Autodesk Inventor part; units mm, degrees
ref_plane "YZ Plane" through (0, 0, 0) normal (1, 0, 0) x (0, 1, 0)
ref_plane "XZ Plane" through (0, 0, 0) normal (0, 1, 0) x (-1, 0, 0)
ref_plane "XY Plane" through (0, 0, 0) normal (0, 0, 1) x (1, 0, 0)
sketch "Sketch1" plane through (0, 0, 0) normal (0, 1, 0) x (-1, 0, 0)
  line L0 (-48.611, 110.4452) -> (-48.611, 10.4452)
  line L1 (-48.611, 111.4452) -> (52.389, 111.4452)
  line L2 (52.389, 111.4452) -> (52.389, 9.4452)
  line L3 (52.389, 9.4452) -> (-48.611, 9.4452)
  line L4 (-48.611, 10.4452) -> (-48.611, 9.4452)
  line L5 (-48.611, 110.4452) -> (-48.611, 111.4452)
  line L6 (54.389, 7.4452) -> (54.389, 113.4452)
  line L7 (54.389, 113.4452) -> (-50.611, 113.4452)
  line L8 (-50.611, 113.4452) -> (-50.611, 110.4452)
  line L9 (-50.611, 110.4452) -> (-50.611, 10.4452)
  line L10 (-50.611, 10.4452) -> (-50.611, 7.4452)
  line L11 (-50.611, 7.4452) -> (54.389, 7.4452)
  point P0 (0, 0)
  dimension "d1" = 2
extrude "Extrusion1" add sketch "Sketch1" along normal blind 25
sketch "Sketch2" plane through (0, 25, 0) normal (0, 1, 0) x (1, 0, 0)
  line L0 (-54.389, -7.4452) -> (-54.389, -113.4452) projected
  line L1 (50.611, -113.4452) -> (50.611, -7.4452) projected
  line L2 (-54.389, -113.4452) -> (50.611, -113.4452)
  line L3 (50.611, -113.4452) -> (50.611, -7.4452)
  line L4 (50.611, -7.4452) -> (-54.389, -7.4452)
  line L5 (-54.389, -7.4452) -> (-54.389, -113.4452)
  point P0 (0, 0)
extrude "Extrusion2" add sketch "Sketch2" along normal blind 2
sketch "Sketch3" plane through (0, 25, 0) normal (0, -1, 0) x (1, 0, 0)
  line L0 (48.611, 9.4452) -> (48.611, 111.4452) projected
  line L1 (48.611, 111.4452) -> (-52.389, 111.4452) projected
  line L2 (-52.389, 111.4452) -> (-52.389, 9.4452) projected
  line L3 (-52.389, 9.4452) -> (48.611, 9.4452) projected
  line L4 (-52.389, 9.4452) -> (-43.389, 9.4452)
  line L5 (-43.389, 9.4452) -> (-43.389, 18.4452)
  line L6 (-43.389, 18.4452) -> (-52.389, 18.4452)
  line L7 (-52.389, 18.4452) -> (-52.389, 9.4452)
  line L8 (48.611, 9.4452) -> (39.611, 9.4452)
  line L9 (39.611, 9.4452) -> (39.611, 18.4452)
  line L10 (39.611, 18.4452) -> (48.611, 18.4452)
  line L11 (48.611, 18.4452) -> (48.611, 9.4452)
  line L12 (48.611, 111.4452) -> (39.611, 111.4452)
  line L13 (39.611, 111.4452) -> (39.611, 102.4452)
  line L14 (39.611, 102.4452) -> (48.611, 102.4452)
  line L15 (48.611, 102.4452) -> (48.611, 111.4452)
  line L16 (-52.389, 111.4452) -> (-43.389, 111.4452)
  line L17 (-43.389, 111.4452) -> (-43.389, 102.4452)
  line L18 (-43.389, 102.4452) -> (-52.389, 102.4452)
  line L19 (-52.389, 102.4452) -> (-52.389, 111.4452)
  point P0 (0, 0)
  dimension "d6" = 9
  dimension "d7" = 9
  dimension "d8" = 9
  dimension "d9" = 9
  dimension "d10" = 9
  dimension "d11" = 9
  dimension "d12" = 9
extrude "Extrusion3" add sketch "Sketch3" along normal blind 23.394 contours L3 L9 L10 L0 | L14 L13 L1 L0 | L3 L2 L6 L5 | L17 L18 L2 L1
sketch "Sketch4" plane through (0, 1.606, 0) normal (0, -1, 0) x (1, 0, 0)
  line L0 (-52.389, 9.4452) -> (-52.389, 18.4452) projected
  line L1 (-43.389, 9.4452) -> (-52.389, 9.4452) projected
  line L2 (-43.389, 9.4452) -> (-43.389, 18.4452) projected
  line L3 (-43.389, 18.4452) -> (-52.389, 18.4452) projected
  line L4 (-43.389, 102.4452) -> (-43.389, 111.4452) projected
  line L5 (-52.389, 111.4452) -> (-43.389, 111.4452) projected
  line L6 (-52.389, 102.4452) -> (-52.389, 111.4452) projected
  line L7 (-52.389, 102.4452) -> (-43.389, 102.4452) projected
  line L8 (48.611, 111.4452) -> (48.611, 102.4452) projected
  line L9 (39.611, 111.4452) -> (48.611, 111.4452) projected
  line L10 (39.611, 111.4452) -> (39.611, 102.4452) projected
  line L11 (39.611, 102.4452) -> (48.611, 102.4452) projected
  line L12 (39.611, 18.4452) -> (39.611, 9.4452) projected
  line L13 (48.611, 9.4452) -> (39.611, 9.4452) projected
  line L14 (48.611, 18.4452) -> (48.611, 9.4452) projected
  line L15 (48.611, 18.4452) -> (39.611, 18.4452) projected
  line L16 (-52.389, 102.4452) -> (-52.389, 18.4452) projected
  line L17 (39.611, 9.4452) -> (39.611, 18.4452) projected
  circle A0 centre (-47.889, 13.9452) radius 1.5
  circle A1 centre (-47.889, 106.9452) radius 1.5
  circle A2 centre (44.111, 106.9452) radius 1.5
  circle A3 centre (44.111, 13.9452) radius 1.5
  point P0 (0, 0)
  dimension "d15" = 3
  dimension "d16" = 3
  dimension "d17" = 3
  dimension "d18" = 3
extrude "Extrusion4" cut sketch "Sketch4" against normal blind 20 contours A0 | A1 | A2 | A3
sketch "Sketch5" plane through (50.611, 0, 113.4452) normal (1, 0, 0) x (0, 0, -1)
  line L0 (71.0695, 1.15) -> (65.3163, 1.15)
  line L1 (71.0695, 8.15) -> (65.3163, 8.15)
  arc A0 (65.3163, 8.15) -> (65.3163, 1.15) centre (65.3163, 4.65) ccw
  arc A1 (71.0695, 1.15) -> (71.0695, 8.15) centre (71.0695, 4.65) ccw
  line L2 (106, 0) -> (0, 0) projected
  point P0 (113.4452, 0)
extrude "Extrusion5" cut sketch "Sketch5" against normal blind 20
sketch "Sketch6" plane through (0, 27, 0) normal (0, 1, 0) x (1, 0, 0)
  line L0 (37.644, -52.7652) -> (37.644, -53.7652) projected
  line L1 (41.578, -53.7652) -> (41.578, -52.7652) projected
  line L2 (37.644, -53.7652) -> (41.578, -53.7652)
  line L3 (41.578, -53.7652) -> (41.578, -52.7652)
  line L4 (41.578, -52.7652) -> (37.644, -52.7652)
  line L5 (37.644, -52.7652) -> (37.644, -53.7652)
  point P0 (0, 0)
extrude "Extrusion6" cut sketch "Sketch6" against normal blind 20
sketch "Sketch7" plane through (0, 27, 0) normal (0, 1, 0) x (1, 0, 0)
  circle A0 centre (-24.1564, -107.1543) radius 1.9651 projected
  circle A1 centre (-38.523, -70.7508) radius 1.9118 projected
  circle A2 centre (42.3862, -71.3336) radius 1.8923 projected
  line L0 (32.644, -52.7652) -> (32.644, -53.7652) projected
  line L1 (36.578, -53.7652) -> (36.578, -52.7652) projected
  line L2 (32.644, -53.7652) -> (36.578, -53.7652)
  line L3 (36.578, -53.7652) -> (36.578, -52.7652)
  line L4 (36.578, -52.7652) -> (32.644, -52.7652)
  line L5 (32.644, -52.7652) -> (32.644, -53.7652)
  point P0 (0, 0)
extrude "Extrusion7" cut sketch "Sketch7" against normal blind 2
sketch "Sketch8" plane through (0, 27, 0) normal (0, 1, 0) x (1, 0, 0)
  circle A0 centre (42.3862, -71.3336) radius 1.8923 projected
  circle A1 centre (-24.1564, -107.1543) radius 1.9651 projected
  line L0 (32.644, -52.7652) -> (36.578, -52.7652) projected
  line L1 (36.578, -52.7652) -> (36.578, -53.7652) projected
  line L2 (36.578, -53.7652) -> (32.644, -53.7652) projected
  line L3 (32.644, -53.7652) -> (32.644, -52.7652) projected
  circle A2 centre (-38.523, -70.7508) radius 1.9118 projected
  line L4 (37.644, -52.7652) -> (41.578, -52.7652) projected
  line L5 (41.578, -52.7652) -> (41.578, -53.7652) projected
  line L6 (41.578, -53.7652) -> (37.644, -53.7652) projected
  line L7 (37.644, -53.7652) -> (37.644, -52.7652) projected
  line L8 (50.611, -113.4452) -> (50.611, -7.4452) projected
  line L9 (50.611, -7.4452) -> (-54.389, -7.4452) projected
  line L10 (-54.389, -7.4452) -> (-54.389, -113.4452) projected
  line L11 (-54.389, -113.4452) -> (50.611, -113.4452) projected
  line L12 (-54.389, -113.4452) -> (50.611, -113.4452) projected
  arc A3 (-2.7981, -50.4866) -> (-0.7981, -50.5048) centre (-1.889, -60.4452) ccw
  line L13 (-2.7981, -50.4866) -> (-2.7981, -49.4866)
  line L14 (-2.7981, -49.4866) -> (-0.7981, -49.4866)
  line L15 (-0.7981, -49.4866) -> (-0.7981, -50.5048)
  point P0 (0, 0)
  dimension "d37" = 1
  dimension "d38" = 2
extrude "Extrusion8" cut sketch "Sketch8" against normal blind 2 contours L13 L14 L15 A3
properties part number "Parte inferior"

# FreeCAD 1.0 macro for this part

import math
import FreeCAD as App
import Part
import Sketcher
from FreeCAD import Vector
Q = App.Units.Quantity


def add_polygon(sketch, points):
    """Adds a closed chain of lines whose ends are joined by coincident constraints."""
    first, n = sketch.GeometryCount, len(points)
    for a, b in zip(points, points[1:] + points[:1]):
        sketch.addGeometry(Part.LineSegment(App.Vector(*a, 0), App.Vector(*b, 0)), False)
    for i in range(n):
        sketch.addConstraint(Sketcher.Constraint("Coincident", first + i, 2, first + (i + 1) % n, 1))

doc = App.newDocument("Part")
params = doc.addObject("Spreadsheet::Sheet", "Params")
for row, (alias, value) in enumerate([
    ("sketch1_width", "105 mm"),
    ("sketch1_height", "106 mm"),
    ("pad1_length", "25 mm"),
    ("sketch2_width", "105 mm"),
    ("sketch2_height", "106 mm"),
    ("pad2_length", "2 mm"),
    ("sketch3_width", "9 mm"),
    ("pad3_length", "23.394 mm"),
    ("sketch4_diameter", "3 mm"),
    ("pocket1_length", "20 mm"),
    ("sketch5_radius", "3.5 mm"),
    ("pocket2_length", "20 mm"),
    ("sketch6_height", "1 mm"),
    ("pocket3_length", "20 mm"),
    ("sketch7_height", "1 mm"),
    ("pocket4_length", "2 mm"),
    ("sketch8_width", "2 mm"),
    ("sketch8_height", "1 mm"),
    ("sketch8_radius", "10 mm"),
    ("pocket5_length", "2 mm"),
], start=1):
    params.set(f"A{row}", alias)
    params.set(f"B{row}", "=" + value)
    params.setAlias(f"B{row}", alias)

body = doc.addObject("PartDesign::Body", "Body")

# Sketch on XZ plane
sketch1 = body.newObject("Sketcher::SketchObject", "Sketch")
sketch1.AttachmentSupport = (doc.getObject("XZ_Plane"), [""])
sketch1.MapMode = "FlatFace"
add_polygon(sketch1, [(50.611, 7.4452), (-54.389, 7.4452), (-54.389, 113.4452), (50.611, 113.4452)])  # lines 0-3
add_polygon(sketch1, [(48.611, 9.4452), (48.611, 111.4452), (-52.389, 111.4452), (-52.389, 9.4452)])  # lines 4-7
sketch1.addConstraint([
    Sketcher.Constraint("Horizontal", 0),
    Sketcher.Constraint("Vertical", 1),
    Sketcher.Constraint("Horizontal", 2),
    Sketcher.Constraint("Vertical", 3),
    Sketcher.Constraint("Vertical", 4),
    Sketcher.Constraint("Horizontal", 5),
    Sketcher.Constraint("Vertical", 6),
    Sketcher.Constraint("Horizontal", 7),
    Sketcher.Constraint("DistanceX", 4, 2, 2, 2, Q("2 mm")),
    Sketcher.Constraint("DistanceY", 4, 2, 2, 2, Q("2 mm")),
    Sketcher.Constraint("DistanceX", 1, 2, 5, 2, Q("2 mm")),
    Sketcher.Constraint("DistanceY", 0, 2, 6, 2, Q("2 mm")),
    Sketcher.Constraint("DistanceX", 0, 2, 0, 1, Q("105 mm")),
    Sketcher.Constraint("DistanceY", 1, 1, 1, 2, Q("106 mm")),
    Sketcher.Constraint("DistanceX", 0, 2, -1, 1, Q("54.389 mm")),
    Sketcher.Constraint("DistanceY", -1, 1, 0, 2, Q("7.4452 mm")),
])
sketch1.setExpression("Constraints[20]", "Params.sketch1_width")
sketch1.setExpression("Constraints[21]", "Params.sketch1_height")
pad1 = body.newObject("PartDesign::Pad", "Pad")
pad1.Profile = sketch1
pad1.setExpression("Length", "Params.pad1_length")
pad1.Reversed = True

# Sketch on XZ plane
sketch2 = body.newObject("Sketcher::SketchObject", "Sketch001")
sketch2.AttachmentSupport = (doc.getObject("XZ_Plane"), [""])
sketch2.MapMode = "FlatFace"
sketch2.AttachmentOffset = App.Placement(Vector(0, 0, -25), App.Rotation())
add_polygon(sketch2, [(50.611, 7.4452), (-54.389, 7.4452), (-54.389, 113.4452), (50.611, 113.4452)])  # lines 0-3
sketch2.addConstraint([
    Sketcher.Constraint("Horizontal", 0),
    Sketcher.Constraint("Vertical", 1),
    Sketcher.Constraint("Horizontal", 2),
    Sketcher.Constraint("Vertical", 3),
    Sketcher.Constraint("DistanceX", 0, 2, 0, 1, Q("105 mm")),
    Sketcher.Constraint("DistanceY", 1, 1, 1, 2, Q("106 mm")),
    Sketcher.Constraint("DistanceX", 0, 2, -1, 1, Q("54.389 mm")),
    Sketcher.Constraint("DistanceY", -1, 1, 0, 2, Q("7.4452 mm")),
])
sketch2.setExpression("Constraints[8]", "Params.sketch2_width")
sketch2.setExpression("Constraints[9]", "Params.sketch2_height")
pad2 = body.newObject("PartDesign::Pad", "Pad001")
pad2.Profile = sketch2
pad2.setExpression("Length", "Params.pad2_length")
pad2.Reversed = True

# Sketch on XZ plane
sketch3 = body.newObject("Sketcher::SketchObject", "Sketch002")
sketch3.AttachmentSupport = (doc.getObject("XZ_Plane"), [""])
sketch3.MapMode = "FlatFace"
sketch3.AttachmentOffset = App.Placement(Vector(0, 0, -25), App.Rotation())
add_polygon(sketch3, [(39.611, 9.4452), (48.611, 9.4452), (48.611, 18.4452), (39.611, 18.4452)])  # lines 0-3
add_polygon(sketch3, [(39.611, 102.4452), (48.611, 102.4452), (48.611, 111.4452), (39.611, 111.4452)])  # lines 4-7
add_polygon(sketch3, [(-52.389, 9.4452), (-43.389, 9.4452), (-43.389, 18.4452), (-52.389, 18.4452)])  # lines 8-11
add_polygon(sketch3, [(-43.389, 102.4452), (-43.389, 111.4452), (-52.389, 111.4452), (-52.389, 102.4452)])  # lines 12-15
sketch3.addConstraint([
    Sketcher.Constraint("Horizontal", 0),
    Sketcher.Constraint("Vertical", 1),
    Sketcher.Constraint("Horizontal", 2),
    Sketcher.Constraint("Vertical", 3),
    Sketcher.Constraint("Horizontal", 4),
    Sketcher.Constraint("Vertical", 5),
    Sketcher.Constraint("Horizontal", 6),
    Sketcher.Constraint("Vertical", 7),
    Sketcher.Constraint("Horizontal", 8),
    Sketcher.Constraint("Vertical", 9),
    Sketcher.Constraint("Horizontal", 10),
    Sketcher.Constraint("Vertical", 11),
    Sketcher.Constraint("Vertical", 12),
    Sketcher.Constraint("Horizontal", 13),
    Sketcher.Constraint("Vertical", 14),
    Sketcher.Constraint("Horizontal", 15),
    Sketcher.Constraint("Horizontal", 3, 2, 8, 2),
    Sketcher.Constraint("Horizontal", 2, 2, 9, 2),
    Sketcher.Constraint("Horizontal", 6, 2, 12, 2),
    Sketcher.Constraint("Horizontal", 7, 2, 14, 2),
    Sketcher.Constraint("Vertical", 1, 2, 4, 2),
    Sketcher.Constraint("Vertical", 3, 2, 6, 2),
    Sketcher.Constraint("Vertical", 9, 2, 12, 2),
    Sketcher.Constraint("Vertical", 11, 2, 13, 2),
    Sketcher.Constraint("Equal", 6, 8),
    Sketcher.Constraint("Equal", 15, 1),
    Sketcher.Constraint("Equal", 3, 5),
    Sketcher.Constraint("DistanceX", 0, 1, 0, 2, Q("9 mm")),
    Sketcher.Constraint("DistanceY", 1, 2, 4, 2, Q("84 mm")),
    Sketcher.Constraint("DistanceX", 8, 2, 3, 2, Q("83 mm")),
    Sketcher.Constraint("DistanceX", -1, 1, 0, 2, Q("48.611 mm")),
    Sketcher.Constraint("DistanceY", -1, 1, 0, 2, Q("9.4452 mm")),
])
sketch3.setExpression("Constraints[43]", "Params.sketch3_width")
pad3 = body.newObject("PartDesign::Pad", "Pad002")
pad3.Profile = sketch3
pad3.setExpression("Length", "Params.pad3_length")

# Sketch on XZ plane
sketch4 = body.newObject("Sketcher::SketchObject", "Sketch003")
sketch4.AttachmentSupport = (doc.getObject("XZ_Plane"), [""])
sketch4.MapMode = "FlatFace"
sketch4.AttachmentOffset = App.Placement(Vector(0, 0, -1.606), App.Rotation())
sketch4.addGeometry([
    Part.Circle(Vector(-47.889, 13.9452, 0), Vector(0, 0, 1), 1.5),
    Part.Circle(Vector(-47.889, 106.9452, 0), Vector(0, 0, 1), 1.5),
    Part.Circle(Vector(44.111, 106.9452, 0), Vector(0, 0, 1), 1.5),
    Part.Circle(Vector(44.111, 13.9452, 0), Vector(0, 0, 1), 1.5),
], False)
sketch4.addConstraint([
    Sketcher.Constraint("Equal", 0, 1),
    Sketcher.Constraint("Equal", 1, 2),
    Sketcher.Constraint("Equal", 2, 3),
    Sketcher.Constraint("Horizontal", 1, 3, 2, 3),
    Sketcher.Constraint("Horizontal", 0, 3, 3, 3),
    Sketcher.Constraint("Vertical", 0, 3, 1, 3),
    Sketcher.Constraint("Vertical", 2, 3, 3, 3),
    Sketcher.Constraint("Diameter", 0, Q("3 mm")),
    Sketcher.Constraint("DistanceY", 0, 3, 1, 3, Q("93 mm")),
    Sketcher.Constraint("DistanceX", 1, 3, 2, 3, Q("92 mm")),
    Sketcher.Constraint("DistanceX", 0, 3, -1, 1, Q("47.889 mm")),
    Sketcher.Constraint("DistanceY", -1, 1, 0, 3, Q("13.9452 mm")),
])
sketch4.setExpression("Constraints[7]", "Params.sketch4_diameter")
pocket1 = body.newObject("PartDesign::Pocket", "Pocket")
pocket1.Profile = sketch4
pocket1.setExpression("Length", "Params.pocket1_length")

# Sketch on YZ plane
sketch5 = body.newObject("Sketcher::SketchObject", "Sketch004")
sketch5.AttachmentSupport = (doc.getObject("YZ_Plane"), [""])
sketch5.MapMode = "FlatFace"
sketch5.AttachmentOffset = App.Placement(Vector(0, 0, 50.611), App.Rotation())
sketch5.addGeometry([
    Part.LineSegment(Vector(1.15, 48.1289, 0), Vector(1.15, 42.3757, 0)),
    Part.ArcOfCircle(Part.Circle(Vector(4.65, 42.3757, 0), Vector(0, 0, 1), 3.5), math.radians(180), math.radians(360)),
    Part.LineSegment(Vector(8.15, 42.3757, 0), Vector(8.15, 48.1289, 0)),
    Part.ArcOfCircle(Part.Circle(Vector(4.65, 48.1289, 0), Vector(0, 0, 1), 3.5), math.radians(0), math.radians(180)),
], False)
sketch5.addConstraint([
    Sketcher.Constraint("Tangent", 0, 2, 1, 1),
    Sketcher.Constraint("Tangent", 1, 2, 2, 1),
    Sketcher.Constraint("Tangent", 2, 2, 3, 1),
    Sketcher.Constraint("Tangent", 3, 2, 0, 1),
    Sketcher.Constraint("Vertical", 0),
    Sketcher.Constraint("Vertical", 2),
    Sketcher.Constraint("Radius", 1, Q("3.5 mm")),
    Sketcher.Constraint("DistanceX", -1, 1, 1, 3, Q("4.65 mm")),
    Sketcher.Constraint("DistanceY", 0, 2, 0, 1, Q("5.7532 mm")),
    Sketcher.Constraint("DistanceY", -1, 1, 3, 3, Q("48.129 mm")),
])
sketch5.setExpression("Constraints[6]", "Params.sketch5_radius")
pocket2 = body.newObject("PartDesign::Pocket", "Pocket001")
pocket2.Profile = sketch5
pocket2.setExpression("Length", "Params.pocket2_length")

# Sketch on XZ plane
sketch6 = body.newObject("Sketcher::SketchObject", "Sketch005")
sketch6.AttachmentSupport = (doc.getObject("XZ_Plane"), [""])
sketch6.MapMode = "FlatFace"
sketch6.AttachmentOffset = App.Placement(Vector(0, 0, -27), App.Rotation())
add_polygon(sketch6, [(41.578, 52.7652), (37.644, 52.7652), (37.644, 53.7652), (41.578, 53.7652)])  # lines 0-3
sketch6.addConstraint([
    Sketcher.Constraint("Horizontal", 0),
    Sketcher.Constraint("Vertical", 1),
    Sketcher.Constraint("Horizontal", 2),
    Sketcher.Constraint("Vertical", 3),
    Sketcher.Constraint("DistanceY", 1, 1, 1, 2, Q("1 mm")),
    Sketcher.Constraint("DistanceX", 0, 2, 0, 1, Q("3.934 mm")),
    Sketcher.Constraint("DistanceX", -1, 1, 0, 2, Q("37.644 mm")),
    Sketcher.Constraint("DistanceY", -1, 1, 0, 2, Q("52.7652 mm")),
])
sketch6.setExpression("Constraints[8]", "Params.sketch6_height")
pocket3 = body.newObject("PartDesign::Pocket", "Pocket002")
pocket3.Profile = sketch6
pocket3.setExpression("Length", "Params.pocket3_length")
pocket3.Reversed = True

# Sketch on XZ plane
sketch7 = body.newObject("Sketcher::SketchObject", "Sketch006")
sketch7.AttachmentSupport = (doc.getObject("XZ_Plane"), [""])
sketch7.MapMode = "FlatFace"
sketch7.AttachmentOffset = App.Placement(Vector(0, 0, -27), App.Rotation())
sketch7.addGeometry(Part.Circle(Vector(-24.1564, 107.1543, 0), Vector(0, 0, 1), 1.9651), False)  # 0
sketch7.addGeometry(Part.Circle(Vector(-38.523, 70.7508, 0), Vector(0, 0, 1), 1.9118), False)  # 1
sketch7.addGeometry(Part.Circle(Vector(42.3862, 71.3336, 0), Vector(0, 0, 1), 1.8923), False)  # 2
add_polygon(sketch7, [(36.578, 52.7652), (32.644, 52.7652), (32.644, 53.7652), (36.578, 53.7652)])  # lines 3-6
sketch7.addConstraint([
    Sketcher.Constraint("Horizontal", 3),
    Sketcher.Constraint("Vertical", 4),
    Sketcher.Constraint("Horizontal", 5),
    Sketcher.Constraint("Vertical", 6),
    Sketcher.Constraint("DistanceY", 4, 1, 4, 2, Q("1 mm")),
    Sketcher.Constraint("Diameter", 0, Q("3.9302 mm")),
    Sketcher.Constraint("Diameter", 1, Q("3.8236 mm")),
    Sketcher.Constraint("Diameter", 2, Q("3.7846 mm")),
    Sketcher.Constraint("DistanceX", 3, 2, 3, 1, Q("3.934 mm")),
    Sketcher.Constraint("DistanceX", 1, 3, -1, 1, Q("38.523 mm")),
    Sketcher.Constraint("DistanceX", -1, 1, 3, 2, Q("32.644 mm")),
    Sketcher.Constraint("DistanceY", 3, 2, 0, 3, Q("54.389 mm")),
    Sketcher.Constraint("DistanceX", 0, 3, -1, 1, Q("24.1564 mm")),
    Sketcher.Constraint("DistanceY", -1, 1, 0, 3, Q("107.1543 mm")),
    Sketcher.Constraint("DistanceY", -1, 1, 1, 3, Q("70.7508 mm")),
    Sketcher.Constraint("DistanceX", -1, 1, 2, 3, Q("42.3862 mm")),
    Sketcher.Constraint("DistanceY", -1, 1, 2, 3, Q("71.3336 mm")),
])
sketch7.setExpression("Constraints[8]", "Params.sketch7_height")
pocket4 = body.newObject("PartDesign::Pocket", "Pocket003")
pocket4.Profile = sketch7
pocket4.setExpression("Length", "Params.pocket4_length")
pocket4.Reversed = True

# Sketch on XZ plane
sketch8 = body.newObject("Sketcher::SketchObject", "Sketch007")
sketch8.AttachmentSupport = (doc.getObject("XZ_Plane"), [""])
sketch8.MapMode = "FlatFace"
sketch8.AttachmentOffset = App.Placement(Vector(0, 0, -27), App.Rotation())
sketch8.addGeometry([
    Part.LineSegment(Vector(-2.7981, 49.4866, 0), Vector(-2.7981, 50.4866, 0)),
    Part.ArcOfCircle(Part.Circle(Vector(-1.889, 60.4452, 0), Vector(0, 0, 1), 10.000009), math.radians(-83.73719), math.radians(264.784044)),
    Part.LineSegment(Vector(-0.7981, 50.5048, 0), Vector(-0.7981, 49.4866, 0)),
    Part.LineSegment(Vector(-0.7981, 49.4866, 0), Vector(-2.7981, 49.4866, 0)),
], False)
sketch8.addConstraint([
    Sketcher.Constraint("Coincident", 0, 2, 1, 2),
    Sketcher.Constraint("Coincident", 1, 1, 2, 1),
    Sketcher.Constraint("Coincident", 2, 2, 3, 1),
    Sketcher.Constraint("Coincident", 3, 2, 0, 1),
    Sketcher.Constraint("Vertical", 0),
    Sketcher.Constraint("Vertical", 2),
    Sketcher.Constraint("Horizontal", 3),
    Sketcher.Constraint("DistanceX", 3, 2, 3, 1, Q("2 mm")),
    Sketcher.Constraint("DistanceY", 0, 1, 0, 2, Q("1 mm")),
    Sketcher.Constraint("Radius", 1, Q("10 mm")),
    Sketcher.Constraint("DistanceY", 2, 2, 2, 1, Q("1.0182 mm")),
    Sketcher.Constraint("DistanceX", 1, 3, -1, 1, Q("1.889 mm")),
    Sketcher.Constraint("DistanceY", -1, 1, 1, 3, Q("60.4452 mm")),
])
sketch8.setExpression("Constraints[7]", "Params.sketch8_width")
sketch8.setExpression("Constraints[8]", "Params.sketch8_height")
sketch8.setExpression("Constraints[9]", "Params.sketch8_radius")
pocket5 = body.newObject("PartDesign::Pocket", "Pocket004")
pocket5.Profile = sketch8
pocket5.setExpression("Length", "Params.pocket5_length")
pocket5.Reversed = True

doc.recompute()
